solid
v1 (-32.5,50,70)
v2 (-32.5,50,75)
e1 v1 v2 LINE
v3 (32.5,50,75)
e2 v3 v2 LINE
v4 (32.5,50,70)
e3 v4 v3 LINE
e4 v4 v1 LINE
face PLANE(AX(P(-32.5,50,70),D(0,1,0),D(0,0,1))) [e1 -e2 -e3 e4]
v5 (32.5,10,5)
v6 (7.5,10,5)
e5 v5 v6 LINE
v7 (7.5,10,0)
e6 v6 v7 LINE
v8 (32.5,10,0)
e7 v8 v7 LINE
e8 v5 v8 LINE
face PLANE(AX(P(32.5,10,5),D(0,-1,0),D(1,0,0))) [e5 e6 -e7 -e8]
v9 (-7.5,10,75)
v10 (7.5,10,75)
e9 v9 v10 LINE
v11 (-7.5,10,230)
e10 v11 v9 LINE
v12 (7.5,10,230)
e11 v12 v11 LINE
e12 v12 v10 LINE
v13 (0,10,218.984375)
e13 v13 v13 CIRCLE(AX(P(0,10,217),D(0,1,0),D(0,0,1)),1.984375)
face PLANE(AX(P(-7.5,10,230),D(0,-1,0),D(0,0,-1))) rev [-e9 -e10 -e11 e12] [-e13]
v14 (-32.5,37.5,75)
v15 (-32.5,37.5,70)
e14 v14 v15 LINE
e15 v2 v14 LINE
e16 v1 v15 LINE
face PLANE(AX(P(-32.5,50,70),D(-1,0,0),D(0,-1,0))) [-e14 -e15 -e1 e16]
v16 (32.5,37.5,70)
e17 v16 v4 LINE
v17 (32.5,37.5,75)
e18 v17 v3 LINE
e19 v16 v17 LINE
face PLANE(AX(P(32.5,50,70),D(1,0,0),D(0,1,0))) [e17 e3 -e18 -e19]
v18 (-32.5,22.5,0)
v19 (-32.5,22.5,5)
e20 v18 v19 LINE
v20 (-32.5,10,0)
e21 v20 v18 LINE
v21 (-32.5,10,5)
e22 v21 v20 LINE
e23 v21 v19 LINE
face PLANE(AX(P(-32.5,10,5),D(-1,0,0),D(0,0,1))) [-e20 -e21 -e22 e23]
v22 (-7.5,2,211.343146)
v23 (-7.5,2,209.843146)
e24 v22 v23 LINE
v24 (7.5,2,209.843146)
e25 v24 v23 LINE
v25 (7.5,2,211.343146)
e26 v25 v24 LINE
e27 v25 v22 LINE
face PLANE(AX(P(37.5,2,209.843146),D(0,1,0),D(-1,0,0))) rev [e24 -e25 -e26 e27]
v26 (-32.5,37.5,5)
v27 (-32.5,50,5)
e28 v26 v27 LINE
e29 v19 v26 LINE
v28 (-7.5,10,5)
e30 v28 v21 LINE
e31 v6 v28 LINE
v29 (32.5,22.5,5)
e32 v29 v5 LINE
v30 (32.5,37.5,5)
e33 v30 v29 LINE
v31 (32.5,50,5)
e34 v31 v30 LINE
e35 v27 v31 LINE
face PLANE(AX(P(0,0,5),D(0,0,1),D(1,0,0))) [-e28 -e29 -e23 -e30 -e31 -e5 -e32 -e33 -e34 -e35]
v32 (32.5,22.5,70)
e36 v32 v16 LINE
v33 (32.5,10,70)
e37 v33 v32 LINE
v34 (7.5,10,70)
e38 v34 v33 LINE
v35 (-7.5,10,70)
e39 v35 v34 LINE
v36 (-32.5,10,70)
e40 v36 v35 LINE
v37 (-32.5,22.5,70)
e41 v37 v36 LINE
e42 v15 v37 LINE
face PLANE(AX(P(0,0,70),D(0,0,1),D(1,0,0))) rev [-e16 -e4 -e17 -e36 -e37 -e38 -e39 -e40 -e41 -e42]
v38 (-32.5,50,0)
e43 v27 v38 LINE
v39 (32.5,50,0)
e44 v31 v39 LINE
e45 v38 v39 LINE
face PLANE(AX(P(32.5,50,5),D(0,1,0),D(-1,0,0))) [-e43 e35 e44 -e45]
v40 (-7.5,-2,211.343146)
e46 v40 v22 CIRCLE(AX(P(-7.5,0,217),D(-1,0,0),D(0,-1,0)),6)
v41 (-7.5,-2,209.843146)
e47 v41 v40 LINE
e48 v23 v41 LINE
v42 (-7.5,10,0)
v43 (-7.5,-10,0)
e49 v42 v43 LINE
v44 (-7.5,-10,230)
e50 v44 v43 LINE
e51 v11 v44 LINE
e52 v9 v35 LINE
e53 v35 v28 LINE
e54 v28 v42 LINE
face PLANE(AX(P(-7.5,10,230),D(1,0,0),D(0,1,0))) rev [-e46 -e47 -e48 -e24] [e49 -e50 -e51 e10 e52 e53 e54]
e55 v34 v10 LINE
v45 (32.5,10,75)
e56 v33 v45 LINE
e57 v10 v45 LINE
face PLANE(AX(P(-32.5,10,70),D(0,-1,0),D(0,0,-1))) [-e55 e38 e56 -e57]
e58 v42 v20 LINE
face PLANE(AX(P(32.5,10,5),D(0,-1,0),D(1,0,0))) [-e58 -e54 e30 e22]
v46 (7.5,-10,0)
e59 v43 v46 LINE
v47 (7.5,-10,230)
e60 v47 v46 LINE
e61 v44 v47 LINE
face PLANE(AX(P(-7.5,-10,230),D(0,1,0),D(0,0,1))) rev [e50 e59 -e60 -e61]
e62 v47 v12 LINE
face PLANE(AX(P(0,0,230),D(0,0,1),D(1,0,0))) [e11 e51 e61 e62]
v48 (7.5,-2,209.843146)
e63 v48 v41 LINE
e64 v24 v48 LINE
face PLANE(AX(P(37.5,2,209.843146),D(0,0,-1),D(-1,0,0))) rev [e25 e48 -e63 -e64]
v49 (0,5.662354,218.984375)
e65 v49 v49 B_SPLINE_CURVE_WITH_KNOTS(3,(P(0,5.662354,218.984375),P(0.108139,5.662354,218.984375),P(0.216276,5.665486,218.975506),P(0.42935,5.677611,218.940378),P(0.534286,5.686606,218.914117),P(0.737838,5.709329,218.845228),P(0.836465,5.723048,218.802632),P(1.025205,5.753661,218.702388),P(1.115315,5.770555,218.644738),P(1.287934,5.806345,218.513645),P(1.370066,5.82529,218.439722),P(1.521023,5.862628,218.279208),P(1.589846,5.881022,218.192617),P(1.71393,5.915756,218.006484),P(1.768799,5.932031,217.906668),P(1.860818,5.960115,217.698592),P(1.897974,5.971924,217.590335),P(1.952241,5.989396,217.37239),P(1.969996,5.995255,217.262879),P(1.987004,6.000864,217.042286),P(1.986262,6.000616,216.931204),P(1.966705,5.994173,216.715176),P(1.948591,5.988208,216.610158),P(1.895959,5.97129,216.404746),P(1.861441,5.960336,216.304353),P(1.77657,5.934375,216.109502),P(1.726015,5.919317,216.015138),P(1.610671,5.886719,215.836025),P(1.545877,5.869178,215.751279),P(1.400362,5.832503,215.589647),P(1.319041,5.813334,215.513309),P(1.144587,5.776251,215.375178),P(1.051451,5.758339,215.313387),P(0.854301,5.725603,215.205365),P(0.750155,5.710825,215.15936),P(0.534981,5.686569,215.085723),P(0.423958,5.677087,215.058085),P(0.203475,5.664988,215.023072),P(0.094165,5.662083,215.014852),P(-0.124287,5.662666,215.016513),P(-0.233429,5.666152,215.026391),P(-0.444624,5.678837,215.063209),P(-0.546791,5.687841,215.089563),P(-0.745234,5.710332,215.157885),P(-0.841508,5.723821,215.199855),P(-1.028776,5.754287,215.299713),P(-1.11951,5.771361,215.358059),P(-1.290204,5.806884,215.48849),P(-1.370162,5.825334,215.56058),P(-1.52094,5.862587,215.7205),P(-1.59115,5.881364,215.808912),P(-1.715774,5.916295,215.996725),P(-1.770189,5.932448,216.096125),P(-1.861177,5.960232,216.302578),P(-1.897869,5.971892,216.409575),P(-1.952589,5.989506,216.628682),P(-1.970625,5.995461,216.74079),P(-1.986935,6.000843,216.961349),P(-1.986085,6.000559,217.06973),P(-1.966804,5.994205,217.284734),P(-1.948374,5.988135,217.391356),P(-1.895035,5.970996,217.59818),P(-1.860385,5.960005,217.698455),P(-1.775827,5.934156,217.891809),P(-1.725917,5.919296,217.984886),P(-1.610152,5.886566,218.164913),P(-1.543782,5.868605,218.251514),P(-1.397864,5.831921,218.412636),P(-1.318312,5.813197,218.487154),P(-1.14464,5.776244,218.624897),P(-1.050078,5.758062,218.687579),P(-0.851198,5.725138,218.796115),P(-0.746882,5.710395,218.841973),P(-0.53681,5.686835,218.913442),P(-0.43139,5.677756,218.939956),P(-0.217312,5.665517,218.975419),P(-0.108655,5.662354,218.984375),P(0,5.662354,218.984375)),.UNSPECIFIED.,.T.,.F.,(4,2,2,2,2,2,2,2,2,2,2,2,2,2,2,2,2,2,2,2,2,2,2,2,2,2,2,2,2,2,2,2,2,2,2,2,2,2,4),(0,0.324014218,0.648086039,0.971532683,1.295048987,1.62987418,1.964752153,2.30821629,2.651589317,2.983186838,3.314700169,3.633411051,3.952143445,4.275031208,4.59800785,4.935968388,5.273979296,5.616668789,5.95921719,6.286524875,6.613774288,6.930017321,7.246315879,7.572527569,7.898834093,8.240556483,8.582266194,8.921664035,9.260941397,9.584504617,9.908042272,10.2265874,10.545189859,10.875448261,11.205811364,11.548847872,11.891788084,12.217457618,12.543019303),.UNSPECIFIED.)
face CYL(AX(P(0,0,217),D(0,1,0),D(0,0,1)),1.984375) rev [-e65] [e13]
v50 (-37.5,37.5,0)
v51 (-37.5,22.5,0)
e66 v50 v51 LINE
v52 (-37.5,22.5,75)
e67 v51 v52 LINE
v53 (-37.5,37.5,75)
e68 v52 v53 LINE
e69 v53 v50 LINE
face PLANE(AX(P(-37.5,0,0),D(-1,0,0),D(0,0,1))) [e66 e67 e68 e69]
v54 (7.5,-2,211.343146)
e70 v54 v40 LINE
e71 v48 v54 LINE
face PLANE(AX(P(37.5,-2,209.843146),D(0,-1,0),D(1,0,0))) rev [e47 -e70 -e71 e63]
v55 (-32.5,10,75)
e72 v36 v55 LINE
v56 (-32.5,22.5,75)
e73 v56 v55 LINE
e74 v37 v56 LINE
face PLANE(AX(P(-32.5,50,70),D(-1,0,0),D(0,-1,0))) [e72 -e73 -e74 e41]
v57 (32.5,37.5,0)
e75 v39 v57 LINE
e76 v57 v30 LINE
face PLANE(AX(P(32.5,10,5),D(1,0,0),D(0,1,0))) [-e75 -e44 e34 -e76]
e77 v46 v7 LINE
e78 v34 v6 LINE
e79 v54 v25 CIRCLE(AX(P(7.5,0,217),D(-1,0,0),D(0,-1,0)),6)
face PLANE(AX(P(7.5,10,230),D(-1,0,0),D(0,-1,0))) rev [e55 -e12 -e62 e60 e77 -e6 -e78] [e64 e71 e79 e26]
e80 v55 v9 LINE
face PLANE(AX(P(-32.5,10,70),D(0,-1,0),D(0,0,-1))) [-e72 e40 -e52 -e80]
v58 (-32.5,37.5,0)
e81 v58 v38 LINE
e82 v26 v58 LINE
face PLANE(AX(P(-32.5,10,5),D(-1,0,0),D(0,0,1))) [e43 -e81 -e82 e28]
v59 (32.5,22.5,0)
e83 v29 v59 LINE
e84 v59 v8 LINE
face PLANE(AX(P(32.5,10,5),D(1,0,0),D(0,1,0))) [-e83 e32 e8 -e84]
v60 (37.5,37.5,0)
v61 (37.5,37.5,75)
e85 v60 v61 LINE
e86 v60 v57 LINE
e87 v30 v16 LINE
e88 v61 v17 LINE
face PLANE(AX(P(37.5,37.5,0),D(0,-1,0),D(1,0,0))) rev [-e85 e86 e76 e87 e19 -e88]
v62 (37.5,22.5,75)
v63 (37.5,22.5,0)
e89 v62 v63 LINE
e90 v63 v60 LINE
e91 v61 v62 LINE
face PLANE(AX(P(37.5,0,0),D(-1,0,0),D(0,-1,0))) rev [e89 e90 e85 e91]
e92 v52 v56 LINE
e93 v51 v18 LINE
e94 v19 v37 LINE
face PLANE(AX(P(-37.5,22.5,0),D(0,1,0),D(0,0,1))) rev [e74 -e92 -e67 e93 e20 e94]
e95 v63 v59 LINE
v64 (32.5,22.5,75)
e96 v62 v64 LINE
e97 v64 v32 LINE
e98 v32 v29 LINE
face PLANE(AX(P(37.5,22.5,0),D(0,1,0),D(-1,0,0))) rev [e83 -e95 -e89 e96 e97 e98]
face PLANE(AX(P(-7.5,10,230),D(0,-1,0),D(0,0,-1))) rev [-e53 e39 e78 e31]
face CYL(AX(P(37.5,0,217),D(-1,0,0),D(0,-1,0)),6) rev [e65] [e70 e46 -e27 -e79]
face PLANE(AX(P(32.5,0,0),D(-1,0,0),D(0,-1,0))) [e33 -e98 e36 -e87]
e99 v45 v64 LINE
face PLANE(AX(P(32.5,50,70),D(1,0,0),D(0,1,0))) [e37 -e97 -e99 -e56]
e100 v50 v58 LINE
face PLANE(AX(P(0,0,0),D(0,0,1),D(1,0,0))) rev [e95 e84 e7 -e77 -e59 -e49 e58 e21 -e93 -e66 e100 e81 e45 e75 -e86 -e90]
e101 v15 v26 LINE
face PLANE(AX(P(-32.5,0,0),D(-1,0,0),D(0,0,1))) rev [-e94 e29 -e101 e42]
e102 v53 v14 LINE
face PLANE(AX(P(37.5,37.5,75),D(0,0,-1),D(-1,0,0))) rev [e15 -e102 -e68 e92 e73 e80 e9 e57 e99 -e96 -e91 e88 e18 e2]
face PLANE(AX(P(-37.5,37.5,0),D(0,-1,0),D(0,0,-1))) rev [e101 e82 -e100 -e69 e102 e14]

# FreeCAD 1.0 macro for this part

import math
import FreeCAD as App
import Part
import Sketcher

doc = App.newDocument("Part")
body = doc.addObject("PartDesign::Body", "Body")

sketch1 = doc.addObject("Sketcher::SketchObject", "Sketch")
body.addObject(sketch1)
sketch1.AttachmentSupport = (doc.XY_Plane, [""])
sketch1.MapMode = "FlatFace"
sketch1.addGeometry(Part.LineSegment(App.Vector(-8, 10, 0), App.Vector(-8, -10, 0)), False)
sketch1.addGeometry(Part.LineSegment(App.Vector(-8, -10, 0), App.Vector(8, -10, 0)), False)
sketch1.addGeometry(Part.LineSegment(App.Vector(8, -10, 0), App.Vector(8, 10, 0)), False)
sketch1.addGeometry(Part.LineSegment(App.Vector(8, 10, 0), App.Vector(-8, 10, 0)), False)
sketch1.addConstraint(Sketcher.Constraint("Coincident", 0, 2, 1, 1))
sketch1.addConstraint(Sketcher.Constraint("Coincident", 1, 2, 2, 1))
sketch1.addConstraint(Sketcher.Constraint("Coincident", 2, 2, 3, 1))
sketch1.addConstraint(Sketcher.Constraint("Coincident", 3, 2, 0, 1))
sketch1.addConstraint(Sketcher.Constraint("Vertical", 0))
sketch1.addConstraint(Sketcher.Constraint("Horizontal", 1))
sketch1.addConstraint(Sketcher.Constraint("Vertical", 2))
sketch1.addConstraint(Sketcher.Constraint("Horizontal", 3))
sketch1.addConstraint(Sketcher.Constraint("Symmetric", 0, 2, 2, 2, -1, 1))
sketch1.addConstraint(Sketcher.Constraint("DistanceX", 1, 1, 1, 2, 15.0))
sketch1.addConstraint(Sketcher.Constraint("DistanceY", 0, 2, 0, 1, 20.0))
pad1 = doc.addObject("PartDesign::Pad", "Pad")
body.addObject(pad1)
pad1.Profile = sketch1
pad1.Length = 230

sketch2 = doc.addObject("Sketcher::SketchObject", "Sketch001")
body.addObject(sketch2)
sketch2.AttachmentSupport = (doc.XY_Plane, [""])
sketch2.MapMode = "FlatFace"
sketch2.addGeometry(Part.LineSegment(App.Vector(32, 50, 0), App.Vector(32, 10, 0)), False)
sketch2.addGeometry(Part.LineSegment(App.Vector(32, 10, 0), App.Vector(-32, 10, 0)), False)
sketch2.addGeometry(Part.LineSegment(App.Vector(-32, 10, 0), App.Vector(-32, 50, 0)), False)
sketch2.addGeometry(Part.LineSegment(App.Vector(-32, 50, 0), App.Vector(32, 50, 0)), False)
sketch2.addConstraint(Sketcher.Constraint("Coincident", 0, 2, 1, 1))
sketch2.addConstraint(Sketcher.Constraint("Coincident", 1, 2, 2, 1))
sketch2.addConstraint(Sketcher.Constraint("Coincident", 2, 2, 3, 1))
sketch2.addConstraint(Sketcher.Constraint("Coincident", 3, 2, 0, 1))
sketch2.addConstraint(Sketcher.Constraint("Vertical", 0))
sketch2.addConstraint(Sketcher.Constraint("Horizontal", 1))
sketch2.addConstraint(Sketcher.Constraint("Vertical", 2))
sketch2.addConstraint(Sketcher.Constraint("Horizontal", 3))
sketch2.addConstraint(Sketcher.Constraint("DistanceX", 1, 2, 1, 1, 65.0))
sketch2.addConstraint(Sketcher.Constraint("DistanceY", 0, 2, 0, 1, 40.0))
sketch2.addConstraint(Sketcher.Constraint("DistanceY", -1, 1, 0, 2, 10.0))
sketch2.addConstraint(Sketcher.Constraint("DistanceX", -1, 1, 0, 2, 32.5))
pad2 = doc.addObject("PartDesign::Pad", "Pad001")
body.addObject(pad2)
pad2.Profile = sketch2
pad2.Length = 5

sketch3 = doc.addObject("Sketcher::SketchObject", "Sketch002")
body.addObject(sketch3)
sketch3.AttachmentSupport = (doc.YZ_Plane, [""])
sketch3.MapMode = "FlatFace"
sketch3.AttachmentOffset = App.Placement(App.Vector(0, 0, 32.5), App.Rotation())
sketch3.addGeometry(Part.LineSegment(App.Vector(38, 75, 0), App.Vector(22, 75, 0)), False)
sketch3.addGeometry(Part.LineSegment(App.Vector(22, 75, 0), App.Vector(22, 0, 0)), False)
sketch3.addGeometry(Part.LineSegment(App.Vector(22, 0, 0), App.Vector(38, 0, 0)), False)
sketch3.addGeometry(Part.LineSegment(App.Vector(38, 0, 0), App.Vector(38, 75, 0)), False)
sketch3.addConstraint(Sketcher.Constraint("Coincident", 0, 2, 1, 1))
sketch3.addConstraint(Sketcher.Constraint("Coincident", 1, 2, 2, 1))
sketch3.addConstraint(Sketcher.Constraint("Coincident", 2, 2, 3, 1))
sketch3.addConstraint(Sketcher.Constraint("Coincident", 3, 2, 0, 1))
sketch3.addConstraint(Sketcher.Constraint("Horizontal", 0))
sketch3.addConstraint(Sketcher.Constraint("Vertical", 1))
sketch3.addConstraint(Sketcher.Constraint("Horizontal", 2))
sketch3.addConstraint(Sketcher.Constraint("Vertical", 3))
sketch3.addConstraint(Sketcher.Constraint("PointOnObject", 1, 2, -1))
sketch3.addConstraint(Sketcher.Constraint("DistanceX", 0, 2, 0, 1, 15.0))
sketch3.addConstraint(Sketcher.Constraint("DistanceY", 1, 2, 1, 1, 75.0))
sketch3.addConstraint(Sketcher.Constraint("DistanceX", -1, 1, 0, 2, 22.5))
pad3 = doc.addObject("PartDesign::Pad", "Pad002")
body.addObject(pad3)
pad3.Profile = sketch3
pad3.Length = 5

sketch4 = doc.addObject("Sketcher::SketchObject", "Sketch003")
body.addObject(sketch4)
sketch4.AttachmentSupport = (doc.YZ_Plane, [""])
sketch4.MapMode = "FlatFace"
sketch4.AttachmentOffset = App.Placement(App.Vector(0, 0, -32.5), App.Rotation())
sketch4.addGeometry(Part.LineSegment(App.Vector(38, 0, 0), App.Vector(22, 0, 0)), False)
sketch4.addGeometry(Part.LineSegment(App.Vector(22, 0, 0), App.Vector(22, 75, 0)), False)
sketch4.addGeometry(Part.LineSegment(App.Vector(22, 75, 0), App.Vector(38, 75, 0)), False)
sketch4.addGeometry(Part.LineSegment(App.Vector(38, 75, 0), App.Vector(38, 0, 0)), False)
sketch4.addConstraint(Sketcher.Constraint("Coincident", 0, 2, 1, 1))
sketch4.addConstraint(Sketcher.Constraint("Coincident", 1, 2, 2, 1))
sketch4.addConstraint(Sketcher.Constraint("Coincident", 2, 2, 3, 1))
sketch4.addConstraint(Sketcher.Constraint("Coincident", 3, 2, 0, 1))
sketch4.addConstraint(Sketcher.Constraint("Horizontal", 0))
sketch4.addConstraint(Sketcher.Constraint("Vertical", 1))
sketch4.addConstraint(Sketcher.Constraint("Horizontal", 2))
sketch4.addConstraint(Sketcher.Constraint("Vertical", 3))
sketch4.addConstraint(Sketcher.Constraint("PointOnObject", 0, 2, -1))
sketch4.addConstraint(Sketcher.Constraint("DistanceX", 0, 2, 0, 1, 15.0))
sketch4.addConstraint(Sketcher.Constraint("DistanceY", 1, 1, 1, 2, 75.0))
sketch4.addConstraint(Sketcher.Constraint("DistanceX", -1, 1, 0, 2, 22.5))
pad4 = doc.addObject("PartDesign::Pad", "Pad003")
body.addObject(pad4)
pad4.Profile = sketch4
pad4.Length = 5
pad4.Reversed = True

sketch5 = doc.addObject("Sketcher::SketchObject", "Sketch004")
body.addObject(sketch5)
sketch5.AttachmentSupport = (doc.XY_Plane, [""])
sketch5.MapMode = "FlatFace"
sketch5.AttachmentOffset = App.Placement(App.Vector(0, 0, 75), App.Rotation())
sketch5.addGeometry(Part.LineSegment(App.Vector(-32, 50, 0), App.Vector(-32, 10, 0)), False)
sketch5.addGeometry(Part.LineSegment(App.Vector(-32, 10, 0), App.Vector(32, 10, 0)), False)
sketch5.addGeometry(Part.LineSegment(App.Vector(32, 10, 0), App.Vector(32, 50, 0)), False)
sketch5.addGeometry(Part.LineSegment(App.Vector(32, 50, 0), App.Vector(-32, 50, 0)), False)
sketch5.addConstraint(Sketcher.Constraint("Coincident", 0, 2, 1, 1))
sketch5.addConstraint(Sketcher.Constraint("Coincident", 1, 2, 2, 1))
sketch5.addConstraint(Sketcher.Constraint("Coincident", 2, 2, 3, 1))
sketch5.addConstraint(Sketcher.Constraint("Coincident", 3, 2, 0, 1))
sketch5.addConstraint(Sketcher.Constraint("Vertical", 0))
sketch5.addConstraint(Sketcher.Constraint("Horizontal", 1))
sketch5.addConstraint(Sketcher.Constraint("Vertical", 2))
sketch5.addConstraint(Sketcher.Constraint("Horizontal", 3))
sketch5.addConstraint(Sketcher.Constraint("DistanceX", 1, 1, 1, 2, 65.0))
sketch5.addConstraint(Sketcher.Constraint("DistanceY", 0, 2, 0, 1, 40.0))
sketch5.addConstraint(Sketcher.Constraint("DistanceY", -1, 1, 0, 2, 10.0))
sketch5.addConstraint(Sketcher.Constraint("DistanceX", 0, 2, -1, 1, 32.5))
pad5 = doc.addObject("PartDesign::Pad", "Pad004")
body.addObject(pad5)
pad5.Profile = sketch5
pad5.Length = 5
pad5.Reversed = True

sketch6 = doc.addObject("Sketcher::SketchObject", "Sketch005")
body.addObject(sketch6)
sketch6.AttachmentSupport = (doc.YZ_Plane, [""])
sketch6.MapMode = "FlatFace"
sketch6.AttachmentOffset = App.Placement(App.Vector(0, 0, -7.5), App.Rotation())
sketch6.addGeometry(Part.LineSegment(App.Vector(2, 211.3, 0), App.Vector(2, 209.8, 0)), False)
sketch6.addGeometry(Part.LineSegment(App.Vector(2, 209.8, 0), App.Vector(-2, 209.8, 0)), False)
sketch6.addGeometry(Part.LineSegment(App.Vector(-2, 209.8, 0), App.Vector(-2, 211.3, 0)), False)
sketch6.addGeometry(Part.ArcOfCircle(Part.Circle(App.Vector(0, 217, 0), App.Vector(0, 0, 1), 6), math.radians(-71), math.radians(251)), False)
sketch6.addConstraint(Sketcher.Constraint("Coincident", 0, 2, 1, 1))
sketch6.addConstraint(Sketcher.Constraint("Coincident", 1, 2, 2, 1))
sketch6.addConstraint(Sketcher.Constraint("Coincident", 2, 2, 3, 2))
sketch6.addConstraint(Sketcher.Constraint("Coincident", 3, 1, 0, 1))
sketch6.addConstraint(Sketcher.Constraint("Vertical", 0))
sketch6.addConstraint(Sketcher.Constraint("Horizontal", 1))
sketch6.addConstraint(Sketcher.Constraint("Vertical", 2))
sketch6.addConstraint(Sketcher.Constraint("Symmetric", 2, 2, 3, 1, -2))
sketch6.addConstraint(Sketcher.Constraint("Radius", 3, 6.0))
sketch6.addConstraint(Sketcher.Constraint("DistanceX", 1, 2, 1, 1, 4.0))
sketch6.addConstraint(Sketcher.Constraint("DistanceY", 0, 2, 0, 1, 1.5))
sketch6.addConstraint(Sketcher.Constraint("DistanceY", -1, 1, 3, 3, 217.0))
pocket1 = doc.addObject("PartDesign::Pocket", "Pocket")
body.addObject(pocket1)
pocket1.Profile = sketch6
pocket1.Type = "ThroughAll"
pocket1.Reversed = True

sketch7 = doc.addObject("Sketcher::SketchObject", "Sketch006")
body.addObject(sketch7)
sketch7.AttachmentSupport = (doc.XZ_Plane, [""])
sketch7.MapMode = "FlatFace"
sketch7.AttachmentOffset = App.Placement(App.Vector(0, 0, -10), App.Rotation())
sketch7.addGeometry(Part.Circle(App.Vector(0, 217, 0), App.Vector(0, 0, 1), 2), False)
sketch7.addConstraint(Sketcher.Constraint("PointOnObject", 0, 3, -2))
sketch7.addConstraint(Sketcher.Constraint("DistanceY", -1, 1, 0, 3, 217.0))
sketch7.addConstraint(Sketcher.Constraint("Diameter", 0, 3.96875))
pocket2 = doc.addObject("PartDesign::Pocket", "Pocket001")
body.addObject(pocket2)
pocket2.Profile = sketch7
pocket2.Length = 10
pocket2.Reversed = True

doc.recompute()
